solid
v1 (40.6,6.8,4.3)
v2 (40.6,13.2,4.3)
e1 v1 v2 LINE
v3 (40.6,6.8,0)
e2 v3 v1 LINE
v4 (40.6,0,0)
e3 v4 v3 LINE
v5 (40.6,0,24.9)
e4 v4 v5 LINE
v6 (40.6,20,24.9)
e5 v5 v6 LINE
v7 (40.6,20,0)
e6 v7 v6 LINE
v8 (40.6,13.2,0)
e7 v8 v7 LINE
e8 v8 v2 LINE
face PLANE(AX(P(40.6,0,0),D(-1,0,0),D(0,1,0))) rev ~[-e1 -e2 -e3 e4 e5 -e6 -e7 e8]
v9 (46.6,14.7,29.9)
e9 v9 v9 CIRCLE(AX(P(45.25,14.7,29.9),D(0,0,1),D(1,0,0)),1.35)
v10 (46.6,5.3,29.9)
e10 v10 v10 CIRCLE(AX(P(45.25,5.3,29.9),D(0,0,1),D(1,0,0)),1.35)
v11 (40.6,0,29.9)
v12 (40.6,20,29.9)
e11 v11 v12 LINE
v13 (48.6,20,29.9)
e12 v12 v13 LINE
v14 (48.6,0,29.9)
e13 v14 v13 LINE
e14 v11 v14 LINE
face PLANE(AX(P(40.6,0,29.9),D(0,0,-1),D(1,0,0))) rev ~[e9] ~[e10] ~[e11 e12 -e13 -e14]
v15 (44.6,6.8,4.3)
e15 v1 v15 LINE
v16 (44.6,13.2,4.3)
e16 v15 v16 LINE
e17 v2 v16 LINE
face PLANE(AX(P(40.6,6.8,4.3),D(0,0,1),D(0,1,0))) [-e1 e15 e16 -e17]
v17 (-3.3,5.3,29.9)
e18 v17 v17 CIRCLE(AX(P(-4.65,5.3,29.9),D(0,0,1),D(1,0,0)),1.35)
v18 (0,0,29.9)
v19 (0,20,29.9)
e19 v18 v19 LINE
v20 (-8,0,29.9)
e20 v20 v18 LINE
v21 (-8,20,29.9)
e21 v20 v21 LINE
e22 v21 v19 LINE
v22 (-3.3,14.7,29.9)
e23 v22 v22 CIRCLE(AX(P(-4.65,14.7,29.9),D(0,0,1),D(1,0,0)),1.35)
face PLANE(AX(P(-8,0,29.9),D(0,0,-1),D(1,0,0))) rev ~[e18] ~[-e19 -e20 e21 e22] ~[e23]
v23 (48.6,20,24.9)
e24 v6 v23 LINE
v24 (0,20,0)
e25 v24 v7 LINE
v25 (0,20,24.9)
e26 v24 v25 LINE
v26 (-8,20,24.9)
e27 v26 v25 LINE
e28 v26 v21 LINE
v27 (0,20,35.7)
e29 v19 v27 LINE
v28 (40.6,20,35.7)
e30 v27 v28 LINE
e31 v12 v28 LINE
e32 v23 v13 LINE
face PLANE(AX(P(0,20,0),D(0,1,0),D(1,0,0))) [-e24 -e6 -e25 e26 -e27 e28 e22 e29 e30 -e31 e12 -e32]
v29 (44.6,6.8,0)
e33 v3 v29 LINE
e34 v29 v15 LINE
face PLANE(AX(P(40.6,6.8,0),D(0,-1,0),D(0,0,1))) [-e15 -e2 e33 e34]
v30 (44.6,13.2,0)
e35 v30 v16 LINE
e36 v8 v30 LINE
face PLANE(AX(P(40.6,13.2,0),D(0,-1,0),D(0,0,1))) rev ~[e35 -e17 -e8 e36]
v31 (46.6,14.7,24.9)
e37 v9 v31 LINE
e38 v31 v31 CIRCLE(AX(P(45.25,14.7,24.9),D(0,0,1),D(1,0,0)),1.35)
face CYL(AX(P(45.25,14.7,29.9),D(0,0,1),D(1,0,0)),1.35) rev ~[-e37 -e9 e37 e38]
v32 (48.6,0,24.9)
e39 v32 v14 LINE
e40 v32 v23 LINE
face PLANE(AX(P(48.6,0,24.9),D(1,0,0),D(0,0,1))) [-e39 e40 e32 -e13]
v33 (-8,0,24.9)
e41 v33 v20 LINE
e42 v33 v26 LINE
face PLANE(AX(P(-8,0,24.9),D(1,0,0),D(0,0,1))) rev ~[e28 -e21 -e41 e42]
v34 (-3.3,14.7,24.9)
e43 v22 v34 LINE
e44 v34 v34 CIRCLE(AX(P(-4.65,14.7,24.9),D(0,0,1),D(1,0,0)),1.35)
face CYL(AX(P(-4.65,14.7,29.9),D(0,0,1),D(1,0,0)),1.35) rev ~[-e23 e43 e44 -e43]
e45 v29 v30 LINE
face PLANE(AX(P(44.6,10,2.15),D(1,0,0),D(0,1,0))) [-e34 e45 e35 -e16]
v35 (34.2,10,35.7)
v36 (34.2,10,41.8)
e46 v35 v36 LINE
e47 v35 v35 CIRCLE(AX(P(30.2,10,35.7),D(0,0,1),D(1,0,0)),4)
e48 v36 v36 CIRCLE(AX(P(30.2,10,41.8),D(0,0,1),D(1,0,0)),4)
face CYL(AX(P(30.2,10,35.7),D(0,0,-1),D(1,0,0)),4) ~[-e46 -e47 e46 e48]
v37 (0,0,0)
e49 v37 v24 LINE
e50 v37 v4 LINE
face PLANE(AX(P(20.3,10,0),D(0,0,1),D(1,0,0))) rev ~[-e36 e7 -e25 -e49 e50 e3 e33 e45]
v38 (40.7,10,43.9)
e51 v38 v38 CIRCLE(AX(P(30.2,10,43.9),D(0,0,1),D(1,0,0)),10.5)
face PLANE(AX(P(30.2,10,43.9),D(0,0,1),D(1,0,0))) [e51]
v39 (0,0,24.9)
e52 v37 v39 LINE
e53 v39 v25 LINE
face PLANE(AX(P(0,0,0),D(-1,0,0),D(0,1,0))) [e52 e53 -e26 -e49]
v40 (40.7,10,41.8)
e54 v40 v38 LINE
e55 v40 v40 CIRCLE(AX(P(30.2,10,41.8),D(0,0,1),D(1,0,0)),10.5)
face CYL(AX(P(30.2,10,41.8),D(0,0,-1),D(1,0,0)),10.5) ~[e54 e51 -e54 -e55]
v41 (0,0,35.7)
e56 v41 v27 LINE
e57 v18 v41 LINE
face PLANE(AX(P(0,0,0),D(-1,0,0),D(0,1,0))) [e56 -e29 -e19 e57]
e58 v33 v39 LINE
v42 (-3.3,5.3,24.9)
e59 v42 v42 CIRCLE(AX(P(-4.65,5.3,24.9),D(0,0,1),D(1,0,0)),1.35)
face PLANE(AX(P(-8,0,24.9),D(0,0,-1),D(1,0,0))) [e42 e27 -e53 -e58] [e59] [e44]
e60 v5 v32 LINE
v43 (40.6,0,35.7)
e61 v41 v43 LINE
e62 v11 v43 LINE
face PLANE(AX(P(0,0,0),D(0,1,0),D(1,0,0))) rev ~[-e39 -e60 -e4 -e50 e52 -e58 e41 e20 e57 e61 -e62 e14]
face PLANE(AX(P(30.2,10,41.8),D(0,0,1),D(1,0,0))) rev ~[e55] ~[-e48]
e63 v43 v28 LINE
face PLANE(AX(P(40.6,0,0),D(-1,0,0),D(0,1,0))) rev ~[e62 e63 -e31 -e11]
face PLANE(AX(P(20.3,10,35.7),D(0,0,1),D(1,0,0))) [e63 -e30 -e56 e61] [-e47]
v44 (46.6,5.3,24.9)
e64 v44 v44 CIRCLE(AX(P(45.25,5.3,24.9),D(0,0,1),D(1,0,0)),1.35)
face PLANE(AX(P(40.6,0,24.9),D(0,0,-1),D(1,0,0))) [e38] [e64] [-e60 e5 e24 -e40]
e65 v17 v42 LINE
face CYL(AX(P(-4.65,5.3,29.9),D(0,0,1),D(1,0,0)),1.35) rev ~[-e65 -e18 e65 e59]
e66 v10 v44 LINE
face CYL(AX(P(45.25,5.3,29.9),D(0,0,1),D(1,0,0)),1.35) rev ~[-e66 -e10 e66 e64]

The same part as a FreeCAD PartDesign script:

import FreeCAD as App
import Part
import Sketcher

V = App.Vector
Q = App.Units.Quantity


def add_polygon(sketch, points):
    """Adds a closed chain of lines whose ends are joined by coincident constraints."""
    first, n = sketch.GeometryCount, len(points)
    for a, b in zip(points, points[1:] + points[:1]):
        sketch.addGeometry(Part.LineSegment(App.Vector(*a, 0), App.Vector(*b, 0)), False)
    for i in range(n):
        sketch.addConstraint(Sketcher.Constraint("Coincident", first + i, 2, first + (i + 1) % n, 1))

doc = App.newDocument("Part")
body = doc.addObject("PartDesign::Body", "Body")

# Sketch on XY plane
sketch1 = doc.addObject("Sketcher::SketchObject", "Sketch")
body.addObject(sketch1)
sketch1.AttachmentSupport = (doc.XY_Plane, [""])
sketch1.MapMode = "FlatFace"
add_polygon(sketch1, [(0, 20), (0, 0), (41, 0), (41, 20)])  # lines 0-3
sketch1.addConstraint(Sketcher.Constraint("Vertical", 0))
sketch1.addConstraint(Sketcher.Constraint("Horizontal", 1))
sketch1.addConstraint(Sketcher.Constraint("Vertical", 2))
sketch1.addConstraint(Sketcher.Constraint("Horizontal", 3))
sketch1.addConstraint(Sketcher.Constraint("Coincident", 0, 2, -1, 1))
sketch1.addConstraint(Sketcher.Constraint("DistanceY", 0, 2, 0, 1, Q("20 mm")))
sketch1.addConstraint(Sketcher.Constraint("DistanceX", 1, 1, 1, 2, Q("40.6 mm")))
pad1 = doc.addObject("PartDesign::Pad", "Pad")
body.addObject(pad1)
pad1.Profile = sketch1
pad1.Length = 35.7

# Sketch on XZ plane
sketch2 = doc.addObject("Sketcher::SketchObject", "Sketch001")
body.addObject(sketch2)
sketch2.AttachmentSupport = (doc.XZ_Plane, [""])
sketch2.MapMode = "FlatFace"
add_polygon(sketch2, [(41, 30), (41, 25), (49, 25), (49, 30)])  # lines 0-3
add_polygon(sketch2, [(-8, 30), (-8, 25), (0, 25), (0, 30)])  # lines 4-7
sketch2.addConstraint(Sketcher.Constraint("Vertical", 0))
sketch2.addConstraint(Sketcher.Constraint("Horizontal", 1))
sketch2.addConstraint(Sketcher.Constraint("Vertical", 2))
sketch2.addConstraint(Sketcher.Constraint("Horizontal", 3))
sketch2.addConstraint(Sketcher.Constraint("Vertical", 4))
sketch2.addConstraint(Sketcher.Constraint("Horizontal", 5))
sketch2.addConstraint(Sketcher.Constraint("Vertical", 6))
sketch2.addConstraint(Sketcher.Constraint("Horizontal", 7))
sketch2.addConstraint(Sketcher.Constraint("PointOnObject", 5, 2, -2))
sketch2.addConstraint(Sketcher.Constraint("Horizontal", 1, 2, 4, 2))
sketch2.addConstraint(Sketcher.Constraint("Horizontal", 3, 2, 6, 2))
sketch2.addConstraint(Sketcher.Constraint("Equal", 3, 5))
sketch2.addConstraint(Sketcher.Constraint("DistanceX", 1, 1, 1, 2, Q("8 mm")))
sketch2.addConstraint(Sketcher.Constraint("DistanceY", 0, 2, 0, 1, Q("5 mm")))
sketch2.addConstraint(Sketcher.Constraint("DistanceX", -1, 1, 0, 2, Q("40.6 mm")))
sketch2.addConstraint(Sketcher.Constraint("DistanceY", -1, 1, 0, 2, Q("24.9 mm")))
pad2 = doc.addObject("PartDesign::Pad", "Pad001")
body.addObject(pad2)
pad2.Profile = sketch2
pad2.Type = "UpToLast"
pad2.Reversed = True

# Sketch on XY plane
sketch3 = doc.addObject("Sketcher::SketchObject", "Sketch002")
body.addObject(sketch3)
sketch3.AttachmentSupport = (doc.XY_Plane, [""])
sketch3.MapMode = "FlatFace"
sketch3.AttachmentOffset = App.Placement(V(0, 0, 35.7), App.Rotation())
sketch3.addGeometry(Part.Circle(V(30.2, 10, 0), V(0, 0, 1), 4), False)
sketch3.addConstraint(Sketcher.Constraint("Diameter", 0, Q("8 mm")))
sketch3.addConstraint(Sketcher.Constraint("DistanceY", -1, 1, 0, 3, Q("10 mm")))
sketch3.addConstraint(Sketcher.Constraint("DistanceX", -1, 1, 0, 3, Q("30.2 mm")))
pad3 = doc.addObject("PartDesign::Pad", "Pad002")
body.addObject(pad3)
pad3.Profile = sketch3
pad3.Length = 6.1

# Sketch on XY plane
sketch4 = doc.addObject("Sketcher::SketchObject", "Sketch003")
body.addObject(sketch4)
sketch4.AttachmentSupport = (doc.XY_Plane, [""])
sketch4.MapMode = "FlatFace"
sketch4.AttachmentOffset = App.Placement(V(0, 0, 41.8), App.Rotation())
sketch4.addGeometry(Part.Circle(V(30, 10, 0), V(0, 0, 1), 10), False)
sketch4.addConstraint(Sketcher.Constraint("Diameter", 0, Q("21 mm")))
sketch4.addConstraint(Sketcher.Constraint("DistanceY", -1, 1, 0, 3, Q("10 mm")))
sketch4.addConstraint(Sketcher.Constraint("DistanceX", -1, 1, 0, 3, Q("30.2 mm")))
pad4 = doc.addObject("PartDesign::Pad", "Pad003")
body.addObject(pad4)
pad4.Profile = sketch4
pad4.Length = 2.1

# Sketch on YZ plane
sketch5 = doc.addObject("Sketcher::SketchObject", "Sketch004")
body.addObject(sketch5)
sketch5.AttachmentSupport = (doc.YZ_Plane, [""])
sketch5.MapMode = "FlatFace"
sketch5.AttachmentOffset = App.Placement(V(0, 0, 40.6), App.Rotation())
add_polygon(sketch5, [(6.8, 4.3), (6.8, 0), (13.2, 0), (13.2, 4.3)])  # lines 0-3
sketch5.addConstraint(Sketcher.Constraint("Vertical", 0))
sketch5.addConstraint(Sketcher.Constraint("Horizontal", 1))
sketch5.addConstraint(Sketcher.Constraint("Vertical", 2))
sketch5.addConstraint(Sketcher.Constraint("Horizontal", 3))
sketch5.addConstraint(Sketcher.Constraint("PointOnObject", 0, 2, -1))
sketch5.addConstraint(Sketcher.Constraint("DistanceX", 1, 1, 1, 2, Q("6.4 mm")))
sketch5.addConstraint(Sketcher.Constraint("DistanceY", 0, 2, 0, 1, Q("4.3 mm")))
sketch5.addConstraint(Sketcher.Constraint("DistanceX", -1, 1, 0, 2, Q("6.8 mm")))
pad5 = doc.addObject("PartDesign::Pad", "Pad004")
body.addObject(pad5)
pad5.Profile = sketch5
pad5.Length = 4

# Sketch on XY plane
sketch6 = doc.addObject("Sketcher::SketchObject", "Sketch005")
body.addObject(sketch6)
sketch6.AttachmentSupport = (doc.XY_Plane, [""])
sketch6.MapMode = "FlatFace"
sketch6.AttachmentOffset = App.Placement(V(0, 0, 29.9), App.Rotation())
sketch6.addGeometry(Part.Circle(V(-4.7, 14.7, 0), V(0, 0, 1), 1.4), False)
sketch6.addGeometry(Part.Circle(V(-4.7, 5.3, 0), V(0, 0, 1), 1.4), False)
sketch6.addGeometry(Part.Circle(V(45.2, 14.7, 0), V(0, 0, 1), 1.4), False)
sketch6.addGeometry(Part.Circle(V(45.2, 5.3, 0), V(0, 0, 1), 1.4), False)
sketch6.addConstraint(Sketcher.Constraint("Equal", 0, 1))
sketch6.addConstraint(Sketcher.Constraint("Equal", 1, 2))
sketch6.addConstraint(Sketcher.Constraint("Equal", 2, 3))
sketch6.addConstraint(Sketcher.Constraint("Horizontal", 0, 3, 2, 3))
sketch6.addConstraint(Sketcher.Constraint("Horizontal", 1, 3, 3, 3))
sketch6.addConstraint(Sketcher.Constraint("Vertical", 0, 3, 1, 3))
sketch6.addConstraint(Sketcher.Constraint("Vertical", 2, 3, 3, 3))
sketch6.addConstraint(Sketcher.Constraint("Diameter", 0, Q("2.7 mm")))
sketch6.addConstraint(Sketcher.Constraint("DistanceY", -1, 1, 0, 3, Q("14.7 mm")))
sketch6.addConstraint(Sketcher.Constraint("DistanceY", -1, 1, 1, 3, Q("5.3 mm")))
sketch6.addConstraint(Sketcher.Constraint("DistanceX", 0, 3, 2, 3, Q("49.9 mm")))
sketch6.addConstraint(Sketcher.Constraint("DistanceX", 0, 3, -1, 1, Q("4.65 mm")))
pocket1 = doc.addObject("PartDesign::Pocket", "Pocket")
body.addObject(pocket1)
pocket1.Profile = sketch6
pocket1.Type = "ThroughAll"

doc.recompute()
